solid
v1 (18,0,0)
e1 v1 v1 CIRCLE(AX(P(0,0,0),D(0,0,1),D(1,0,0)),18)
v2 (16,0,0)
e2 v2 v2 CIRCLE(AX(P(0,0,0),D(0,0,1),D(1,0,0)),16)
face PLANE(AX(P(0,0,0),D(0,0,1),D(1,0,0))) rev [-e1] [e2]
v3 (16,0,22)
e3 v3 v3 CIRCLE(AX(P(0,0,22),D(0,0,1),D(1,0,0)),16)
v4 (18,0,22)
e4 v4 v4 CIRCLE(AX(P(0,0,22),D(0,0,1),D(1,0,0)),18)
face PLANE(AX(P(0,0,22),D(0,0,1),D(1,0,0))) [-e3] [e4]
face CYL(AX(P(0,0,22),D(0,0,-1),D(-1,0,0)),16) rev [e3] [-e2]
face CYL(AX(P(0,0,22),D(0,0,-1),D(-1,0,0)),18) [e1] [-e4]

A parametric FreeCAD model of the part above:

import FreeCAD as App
import Part
import Sketcher

doc = App.newDocument("Part")
body = doc.addObject("PartDesign::Body", "Body")

# Sketch on XY plane
sketch1 = body.newObject("Sketcher::SketchObject", "Sketch")
sketch1.AttachmentSupport = (doc.getObject("XY_Plane"), [""])
sketch1.MapMode = "FlatFace"
sketch1.addGeometry([
    Part.Circle(App.Vector(0, 0, 0), App.Vector(0, 0, 1), 18),
    Part.Circle(App.Vector(0, 0, 0), App.Vector(0, 0, 1), 16),
], False)
sketch1.addConstraint([
    Sketcher.Constraint("Coincident", 0, 3, -1, 1),
    Sketcher.Constraint("Coincident", 1, 3, -1, 1),
    Sketcher.Constraint("Diameter", 0, 36.0),
    Sketcher.Constraint("Diameter", 1, 32.0),
])
pad1 = body.newObject("PartDesign::Pad", "Pad")
pad1.Profile = sketch1
pad1.Length = 22

doc.recompute()
